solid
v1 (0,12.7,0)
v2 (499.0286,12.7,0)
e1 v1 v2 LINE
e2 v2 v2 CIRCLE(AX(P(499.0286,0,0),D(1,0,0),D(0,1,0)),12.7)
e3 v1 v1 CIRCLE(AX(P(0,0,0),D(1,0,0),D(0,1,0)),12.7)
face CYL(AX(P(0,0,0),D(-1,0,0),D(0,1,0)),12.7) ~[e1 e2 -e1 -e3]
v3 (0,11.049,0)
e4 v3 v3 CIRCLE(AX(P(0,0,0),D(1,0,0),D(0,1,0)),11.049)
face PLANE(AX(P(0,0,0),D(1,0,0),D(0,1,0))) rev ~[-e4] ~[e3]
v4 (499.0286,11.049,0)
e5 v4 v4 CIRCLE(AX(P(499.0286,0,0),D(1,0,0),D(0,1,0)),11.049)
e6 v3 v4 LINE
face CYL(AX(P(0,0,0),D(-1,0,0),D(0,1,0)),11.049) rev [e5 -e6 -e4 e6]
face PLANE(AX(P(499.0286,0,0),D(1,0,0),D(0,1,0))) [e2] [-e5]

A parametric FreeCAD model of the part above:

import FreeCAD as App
import Part
import Sketcher

V = App.Vector
Q = App.Units.Quantity

doc = App.newDocument("Part")
body = doc.addObject("PartDesign::Body", "Body")

# Sketch on YZ plane
sketch1 = doc.addObject("Sketcher::SketchObject", "Sketch")
body.addObject(sketch1)
sketch1.AttachmentSupport = (doc.YZ_Plane, [""])
sketch1.MapMode = "FlatFace"
sketch1.addGeometry(Part.Circle(V(0, 0, 0), V(0, 0, 1), 13), False)
sketch1.addGeometry(Part.Circle(V(0, 0, 0), V(0, 0, 1), 11), False)
sketch1.addConstraint(Sketcher.Constraint("Coincident", 0, 3, -1, 1))
sketch1.addConstraint(Sketcher.Constraint("Coincident", 1, 3, -1, 1))
sketch1.addConstraint(Sketcher.Constraint("Diameter", 0, Q("1 in")))
sketch1.addConstraint(Sketcher.Constraint("Diameter", 1, Q("0.87 in")))
pad1 = doc.addObject("PartDesign::Pad", "Pad")
body.addObject(pad1)
pad1.Profile = sketch1
pad1.Length = Q("19.6467953 in")

doc.recompute()
